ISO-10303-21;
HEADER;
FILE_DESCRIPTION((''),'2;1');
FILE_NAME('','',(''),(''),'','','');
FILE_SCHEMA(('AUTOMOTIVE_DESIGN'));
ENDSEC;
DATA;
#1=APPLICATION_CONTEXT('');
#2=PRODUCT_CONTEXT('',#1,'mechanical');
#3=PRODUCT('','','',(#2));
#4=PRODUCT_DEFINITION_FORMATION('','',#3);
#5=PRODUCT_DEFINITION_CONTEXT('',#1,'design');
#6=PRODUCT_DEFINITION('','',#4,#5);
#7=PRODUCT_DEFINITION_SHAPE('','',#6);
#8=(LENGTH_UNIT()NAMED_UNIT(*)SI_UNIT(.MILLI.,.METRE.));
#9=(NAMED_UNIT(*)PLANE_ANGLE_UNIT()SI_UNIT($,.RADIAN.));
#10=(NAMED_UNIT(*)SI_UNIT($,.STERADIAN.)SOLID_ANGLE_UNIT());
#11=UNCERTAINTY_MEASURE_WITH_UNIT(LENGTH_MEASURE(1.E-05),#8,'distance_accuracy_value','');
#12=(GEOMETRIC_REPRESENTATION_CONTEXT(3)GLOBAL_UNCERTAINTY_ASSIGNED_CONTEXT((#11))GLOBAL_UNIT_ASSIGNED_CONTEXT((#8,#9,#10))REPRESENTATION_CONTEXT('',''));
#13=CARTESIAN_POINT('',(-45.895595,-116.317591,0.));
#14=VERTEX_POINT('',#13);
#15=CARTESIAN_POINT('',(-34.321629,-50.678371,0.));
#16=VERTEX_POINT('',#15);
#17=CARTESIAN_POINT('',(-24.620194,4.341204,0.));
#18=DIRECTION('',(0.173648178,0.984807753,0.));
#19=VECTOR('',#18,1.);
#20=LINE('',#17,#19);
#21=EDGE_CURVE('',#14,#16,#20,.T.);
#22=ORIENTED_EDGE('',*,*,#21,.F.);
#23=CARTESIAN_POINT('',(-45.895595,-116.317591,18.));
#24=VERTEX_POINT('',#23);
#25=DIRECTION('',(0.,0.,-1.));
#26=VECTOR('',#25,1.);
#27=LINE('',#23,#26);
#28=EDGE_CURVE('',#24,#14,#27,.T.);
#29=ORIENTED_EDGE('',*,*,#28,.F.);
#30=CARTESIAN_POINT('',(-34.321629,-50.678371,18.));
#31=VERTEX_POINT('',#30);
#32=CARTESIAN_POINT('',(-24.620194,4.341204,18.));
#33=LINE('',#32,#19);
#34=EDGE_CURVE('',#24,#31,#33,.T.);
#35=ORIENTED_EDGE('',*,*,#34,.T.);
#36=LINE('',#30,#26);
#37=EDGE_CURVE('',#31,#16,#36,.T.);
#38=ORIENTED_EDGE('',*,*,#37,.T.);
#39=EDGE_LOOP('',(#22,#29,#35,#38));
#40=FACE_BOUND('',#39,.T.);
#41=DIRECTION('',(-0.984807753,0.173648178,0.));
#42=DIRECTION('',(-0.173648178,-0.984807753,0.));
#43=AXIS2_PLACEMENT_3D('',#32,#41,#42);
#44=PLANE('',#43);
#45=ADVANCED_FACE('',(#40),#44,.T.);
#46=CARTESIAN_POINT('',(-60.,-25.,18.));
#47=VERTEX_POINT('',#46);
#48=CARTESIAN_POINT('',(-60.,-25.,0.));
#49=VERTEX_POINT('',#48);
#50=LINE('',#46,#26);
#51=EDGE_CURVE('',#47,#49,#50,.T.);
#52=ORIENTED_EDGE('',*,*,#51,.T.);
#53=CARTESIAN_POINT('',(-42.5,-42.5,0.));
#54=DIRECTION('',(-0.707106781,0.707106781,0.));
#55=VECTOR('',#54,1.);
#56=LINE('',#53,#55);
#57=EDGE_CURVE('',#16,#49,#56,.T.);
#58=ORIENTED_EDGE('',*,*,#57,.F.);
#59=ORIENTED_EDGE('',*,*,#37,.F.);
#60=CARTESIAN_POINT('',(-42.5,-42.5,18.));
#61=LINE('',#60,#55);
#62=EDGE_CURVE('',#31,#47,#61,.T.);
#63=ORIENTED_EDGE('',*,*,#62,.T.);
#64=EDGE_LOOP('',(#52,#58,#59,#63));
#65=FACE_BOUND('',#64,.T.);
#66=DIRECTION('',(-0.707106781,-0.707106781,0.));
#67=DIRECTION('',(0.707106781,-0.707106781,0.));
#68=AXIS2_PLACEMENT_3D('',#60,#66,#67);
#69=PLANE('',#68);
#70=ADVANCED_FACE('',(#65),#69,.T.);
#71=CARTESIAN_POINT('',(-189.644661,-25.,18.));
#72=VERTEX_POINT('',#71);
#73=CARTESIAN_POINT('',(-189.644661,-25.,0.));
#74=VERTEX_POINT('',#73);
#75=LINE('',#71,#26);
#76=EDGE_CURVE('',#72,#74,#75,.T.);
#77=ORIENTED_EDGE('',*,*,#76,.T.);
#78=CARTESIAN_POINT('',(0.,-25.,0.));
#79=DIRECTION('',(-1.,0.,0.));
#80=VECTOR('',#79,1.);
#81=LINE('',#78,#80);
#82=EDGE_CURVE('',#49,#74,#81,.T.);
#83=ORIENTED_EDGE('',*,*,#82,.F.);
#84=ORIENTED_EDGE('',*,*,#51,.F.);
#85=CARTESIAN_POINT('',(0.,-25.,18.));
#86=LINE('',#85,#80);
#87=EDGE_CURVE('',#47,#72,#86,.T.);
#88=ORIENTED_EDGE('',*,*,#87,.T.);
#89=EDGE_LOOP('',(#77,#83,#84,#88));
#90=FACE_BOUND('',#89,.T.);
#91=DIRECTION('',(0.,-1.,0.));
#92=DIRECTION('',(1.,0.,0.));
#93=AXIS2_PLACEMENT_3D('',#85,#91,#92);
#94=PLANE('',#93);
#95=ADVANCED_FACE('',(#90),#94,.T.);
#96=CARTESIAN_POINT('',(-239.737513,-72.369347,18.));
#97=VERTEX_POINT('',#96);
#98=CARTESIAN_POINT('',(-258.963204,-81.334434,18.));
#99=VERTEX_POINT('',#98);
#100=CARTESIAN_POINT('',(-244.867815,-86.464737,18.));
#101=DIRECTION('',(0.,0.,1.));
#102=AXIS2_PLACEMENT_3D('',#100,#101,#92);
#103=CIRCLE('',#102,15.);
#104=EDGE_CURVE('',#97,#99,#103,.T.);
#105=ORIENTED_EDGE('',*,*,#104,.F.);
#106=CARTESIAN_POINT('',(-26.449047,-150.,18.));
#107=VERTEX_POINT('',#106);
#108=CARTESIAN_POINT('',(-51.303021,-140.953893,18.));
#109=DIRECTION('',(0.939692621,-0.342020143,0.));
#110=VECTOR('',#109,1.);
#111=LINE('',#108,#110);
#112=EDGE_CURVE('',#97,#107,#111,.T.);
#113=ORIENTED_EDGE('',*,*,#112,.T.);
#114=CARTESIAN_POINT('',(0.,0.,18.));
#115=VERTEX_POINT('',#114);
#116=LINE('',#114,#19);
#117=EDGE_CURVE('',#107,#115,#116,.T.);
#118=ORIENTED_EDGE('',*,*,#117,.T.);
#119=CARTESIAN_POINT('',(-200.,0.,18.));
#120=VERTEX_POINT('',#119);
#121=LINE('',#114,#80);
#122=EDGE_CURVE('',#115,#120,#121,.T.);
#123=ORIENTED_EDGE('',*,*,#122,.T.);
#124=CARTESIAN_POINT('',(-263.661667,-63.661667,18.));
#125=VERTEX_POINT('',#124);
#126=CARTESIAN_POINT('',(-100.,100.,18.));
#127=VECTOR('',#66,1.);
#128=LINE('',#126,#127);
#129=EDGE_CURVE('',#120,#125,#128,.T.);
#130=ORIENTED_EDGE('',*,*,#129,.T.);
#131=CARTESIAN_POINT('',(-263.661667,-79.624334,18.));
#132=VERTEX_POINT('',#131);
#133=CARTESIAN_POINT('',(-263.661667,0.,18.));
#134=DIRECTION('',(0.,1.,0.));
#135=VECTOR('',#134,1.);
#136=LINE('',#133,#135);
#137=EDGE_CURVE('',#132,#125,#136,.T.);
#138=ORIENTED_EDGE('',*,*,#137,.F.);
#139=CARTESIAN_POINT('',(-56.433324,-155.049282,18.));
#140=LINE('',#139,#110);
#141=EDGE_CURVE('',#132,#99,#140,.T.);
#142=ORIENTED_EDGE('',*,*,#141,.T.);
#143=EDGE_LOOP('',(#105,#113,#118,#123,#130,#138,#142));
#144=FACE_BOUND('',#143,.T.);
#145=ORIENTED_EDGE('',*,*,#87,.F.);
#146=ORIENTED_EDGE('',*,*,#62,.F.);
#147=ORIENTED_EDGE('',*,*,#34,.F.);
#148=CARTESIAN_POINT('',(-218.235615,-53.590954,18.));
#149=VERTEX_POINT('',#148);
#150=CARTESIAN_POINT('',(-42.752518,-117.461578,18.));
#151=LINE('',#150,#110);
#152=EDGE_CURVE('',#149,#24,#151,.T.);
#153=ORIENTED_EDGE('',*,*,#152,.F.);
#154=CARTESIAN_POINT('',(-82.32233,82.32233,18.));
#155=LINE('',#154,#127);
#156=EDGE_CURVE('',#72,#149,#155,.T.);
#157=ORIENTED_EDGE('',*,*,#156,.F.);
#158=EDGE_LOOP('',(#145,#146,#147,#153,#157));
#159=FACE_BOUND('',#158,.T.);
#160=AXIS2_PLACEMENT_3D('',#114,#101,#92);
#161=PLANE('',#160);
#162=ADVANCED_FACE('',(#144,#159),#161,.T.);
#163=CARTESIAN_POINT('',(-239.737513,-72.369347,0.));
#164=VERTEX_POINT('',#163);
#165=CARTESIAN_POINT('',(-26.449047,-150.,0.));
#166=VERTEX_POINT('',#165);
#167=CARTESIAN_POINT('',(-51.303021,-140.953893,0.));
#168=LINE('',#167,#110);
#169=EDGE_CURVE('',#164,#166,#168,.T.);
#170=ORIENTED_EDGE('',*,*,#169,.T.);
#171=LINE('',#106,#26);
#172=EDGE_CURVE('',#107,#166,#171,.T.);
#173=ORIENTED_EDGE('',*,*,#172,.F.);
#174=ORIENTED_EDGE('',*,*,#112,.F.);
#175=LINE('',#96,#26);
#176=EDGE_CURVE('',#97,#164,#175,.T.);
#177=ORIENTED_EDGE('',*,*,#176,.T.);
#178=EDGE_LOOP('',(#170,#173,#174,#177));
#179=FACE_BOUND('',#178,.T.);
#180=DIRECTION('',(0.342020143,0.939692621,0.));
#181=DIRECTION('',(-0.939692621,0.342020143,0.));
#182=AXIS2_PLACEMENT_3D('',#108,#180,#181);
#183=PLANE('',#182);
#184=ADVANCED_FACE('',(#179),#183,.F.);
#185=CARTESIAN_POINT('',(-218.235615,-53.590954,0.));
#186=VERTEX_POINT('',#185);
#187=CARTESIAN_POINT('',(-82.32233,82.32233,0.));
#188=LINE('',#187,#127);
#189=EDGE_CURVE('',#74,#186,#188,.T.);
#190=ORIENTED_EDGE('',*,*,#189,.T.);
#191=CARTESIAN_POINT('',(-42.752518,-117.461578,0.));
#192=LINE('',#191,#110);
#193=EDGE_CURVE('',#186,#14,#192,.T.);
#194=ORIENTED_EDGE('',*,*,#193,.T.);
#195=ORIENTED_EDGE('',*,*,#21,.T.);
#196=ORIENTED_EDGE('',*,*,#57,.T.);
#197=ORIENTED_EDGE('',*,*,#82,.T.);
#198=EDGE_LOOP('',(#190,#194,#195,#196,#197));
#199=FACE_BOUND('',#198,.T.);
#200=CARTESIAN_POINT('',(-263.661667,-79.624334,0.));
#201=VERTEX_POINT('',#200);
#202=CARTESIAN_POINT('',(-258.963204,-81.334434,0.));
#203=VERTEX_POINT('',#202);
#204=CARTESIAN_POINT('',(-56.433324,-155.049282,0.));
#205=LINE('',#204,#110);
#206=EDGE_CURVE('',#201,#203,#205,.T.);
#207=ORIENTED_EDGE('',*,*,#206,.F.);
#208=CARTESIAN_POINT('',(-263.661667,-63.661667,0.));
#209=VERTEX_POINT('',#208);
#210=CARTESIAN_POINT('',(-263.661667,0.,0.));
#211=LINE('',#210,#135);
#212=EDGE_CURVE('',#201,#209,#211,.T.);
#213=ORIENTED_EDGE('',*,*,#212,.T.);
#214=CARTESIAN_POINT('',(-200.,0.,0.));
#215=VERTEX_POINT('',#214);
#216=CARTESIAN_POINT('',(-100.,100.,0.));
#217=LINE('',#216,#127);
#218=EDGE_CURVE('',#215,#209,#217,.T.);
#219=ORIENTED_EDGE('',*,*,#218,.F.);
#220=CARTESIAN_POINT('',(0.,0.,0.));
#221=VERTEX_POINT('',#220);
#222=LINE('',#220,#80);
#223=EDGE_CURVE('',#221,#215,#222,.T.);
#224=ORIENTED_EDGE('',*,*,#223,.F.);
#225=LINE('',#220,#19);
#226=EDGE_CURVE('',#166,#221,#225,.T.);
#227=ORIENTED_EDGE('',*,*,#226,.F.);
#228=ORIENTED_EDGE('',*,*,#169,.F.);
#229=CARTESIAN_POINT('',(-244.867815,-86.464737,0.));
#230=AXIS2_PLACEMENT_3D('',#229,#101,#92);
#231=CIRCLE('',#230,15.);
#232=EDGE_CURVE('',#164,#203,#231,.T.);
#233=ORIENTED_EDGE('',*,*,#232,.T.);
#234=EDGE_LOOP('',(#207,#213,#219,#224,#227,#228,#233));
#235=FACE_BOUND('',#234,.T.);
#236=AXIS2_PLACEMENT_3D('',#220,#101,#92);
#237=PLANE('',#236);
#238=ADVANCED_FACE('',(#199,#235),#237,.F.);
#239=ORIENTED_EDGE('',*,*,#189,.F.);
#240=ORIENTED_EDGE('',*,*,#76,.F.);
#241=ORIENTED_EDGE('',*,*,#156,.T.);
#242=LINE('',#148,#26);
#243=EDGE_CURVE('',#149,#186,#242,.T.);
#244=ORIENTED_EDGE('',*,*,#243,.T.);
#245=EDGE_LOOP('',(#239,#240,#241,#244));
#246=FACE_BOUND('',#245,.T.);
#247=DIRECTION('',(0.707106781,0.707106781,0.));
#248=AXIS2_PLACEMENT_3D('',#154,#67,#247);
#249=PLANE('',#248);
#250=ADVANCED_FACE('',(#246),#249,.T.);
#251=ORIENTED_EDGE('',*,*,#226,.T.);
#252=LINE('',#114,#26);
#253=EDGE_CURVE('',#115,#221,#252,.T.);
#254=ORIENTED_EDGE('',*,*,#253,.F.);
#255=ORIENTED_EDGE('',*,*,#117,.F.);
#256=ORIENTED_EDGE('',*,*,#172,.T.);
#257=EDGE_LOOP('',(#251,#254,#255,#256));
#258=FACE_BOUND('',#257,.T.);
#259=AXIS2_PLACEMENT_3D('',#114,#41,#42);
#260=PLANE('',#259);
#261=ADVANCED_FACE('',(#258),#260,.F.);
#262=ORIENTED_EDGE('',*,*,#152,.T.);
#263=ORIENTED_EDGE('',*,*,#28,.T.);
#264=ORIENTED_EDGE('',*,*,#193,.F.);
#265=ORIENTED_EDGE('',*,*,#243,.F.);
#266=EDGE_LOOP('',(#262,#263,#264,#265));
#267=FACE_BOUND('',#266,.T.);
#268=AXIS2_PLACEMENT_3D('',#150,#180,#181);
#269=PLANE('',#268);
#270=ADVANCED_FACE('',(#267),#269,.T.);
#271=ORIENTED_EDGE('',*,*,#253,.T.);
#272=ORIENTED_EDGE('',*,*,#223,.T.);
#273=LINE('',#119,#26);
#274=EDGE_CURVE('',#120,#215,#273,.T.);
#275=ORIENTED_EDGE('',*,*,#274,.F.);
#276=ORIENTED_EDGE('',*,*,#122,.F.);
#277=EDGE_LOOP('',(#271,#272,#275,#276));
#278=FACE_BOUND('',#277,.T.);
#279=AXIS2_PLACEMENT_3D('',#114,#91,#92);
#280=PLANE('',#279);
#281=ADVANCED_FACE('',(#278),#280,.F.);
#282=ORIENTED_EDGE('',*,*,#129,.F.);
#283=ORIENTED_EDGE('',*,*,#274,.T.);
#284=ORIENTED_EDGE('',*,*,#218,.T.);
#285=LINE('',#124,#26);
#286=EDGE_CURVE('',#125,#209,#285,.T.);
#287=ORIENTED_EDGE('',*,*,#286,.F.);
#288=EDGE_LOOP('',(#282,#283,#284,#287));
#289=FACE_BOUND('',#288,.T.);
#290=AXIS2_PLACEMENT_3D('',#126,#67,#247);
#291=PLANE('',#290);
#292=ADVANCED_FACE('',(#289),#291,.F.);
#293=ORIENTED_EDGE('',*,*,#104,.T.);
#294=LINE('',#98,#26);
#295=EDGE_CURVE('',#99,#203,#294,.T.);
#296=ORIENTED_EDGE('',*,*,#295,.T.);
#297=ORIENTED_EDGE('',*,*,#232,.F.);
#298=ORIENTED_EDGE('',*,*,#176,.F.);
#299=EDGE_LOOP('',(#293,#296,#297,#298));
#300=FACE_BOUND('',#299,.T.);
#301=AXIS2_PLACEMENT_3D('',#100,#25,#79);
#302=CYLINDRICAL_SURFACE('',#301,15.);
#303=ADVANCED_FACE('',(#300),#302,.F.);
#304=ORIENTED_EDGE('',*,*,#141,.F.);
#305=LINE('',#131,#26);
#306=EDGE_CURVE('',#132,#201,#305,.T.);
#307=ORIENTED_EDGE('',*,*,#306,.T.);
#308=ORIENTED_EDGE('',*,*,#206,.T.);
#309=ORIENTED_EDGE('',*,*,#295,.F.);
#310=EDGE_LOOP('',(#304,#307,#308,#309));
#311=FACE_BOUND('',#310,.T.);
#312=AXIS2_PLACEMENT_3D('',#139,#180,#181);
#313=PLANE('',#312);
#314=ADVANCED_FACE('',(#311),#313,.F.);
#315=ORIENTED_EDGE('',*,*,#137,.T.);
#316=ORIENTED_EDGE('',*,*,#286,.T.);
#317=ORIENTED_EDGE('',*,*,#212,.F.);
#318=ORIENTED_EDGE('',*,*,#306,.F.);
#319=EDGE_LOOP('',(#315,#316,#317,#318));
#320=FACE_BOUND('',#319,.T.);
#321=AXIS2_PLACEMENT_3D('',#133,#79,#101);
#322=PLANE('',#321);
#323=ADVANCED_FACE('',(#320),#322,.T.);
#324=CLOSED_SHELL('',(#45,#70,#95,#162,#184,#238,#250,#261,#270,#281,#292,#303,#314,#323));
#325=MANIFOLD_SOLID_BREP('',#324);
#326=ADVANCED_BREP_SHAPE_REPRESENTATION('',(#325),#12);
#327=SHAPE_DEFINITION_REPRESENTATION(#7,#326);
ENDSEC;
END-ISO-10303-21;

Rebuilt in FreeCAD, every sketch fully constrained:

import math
import FreeCAD as App
import Part
import Sketcher
Q = App.Units.Quantity


def add_polygon(sketch, points):
    """Adds a closed chain of lines whose ends are joined by coincident constraints."""
    first, n = sketch.GeometryCount, len(points)
    for a, b in zip(points, points[1:] + points[:1]):
        sketch.addGeometry(Part.LineSegment(App.Vector(*a, 0), App.Vector(*b, 0)), False)
    for i in range(n):
        sketch.addConstraint(Sketcher.Constraint("Coincident", first + i, 2, first + (i + 1) % n, 1))

doc = App.newDocument("Part")
params = doc.addObject("Spreadsheet::Sheet", "Params")
for row, (alias, value) in enumerate([
    ("sketch1_radius", "15 mm"),
    ("sketch1_width", "200 mm"),
    ("sketch1_length", "5 mm"),
    ("pad1_length", "18 mm"),
], start=1):
    params.set(f"A{row}", alias)
    params.set(f"B{row}", "=" + value)
    params.setAlias(f"B{row}", alias)

body = doc.addObject("PartDesign::Body", "Body")

# Sketch on XY plane
sketch1 = body.newObject("Sketcher::SketchObject", "Sketch")
sketch1.AttachmentSupport = (doc.getObject("XY_Plane"), [""])
sketch1.MapMode = "FlatFace"
sketch1.addGeometry(Part.ArcOfCircle(Part.Circle(App.Vector(-245, -86, 0), App.Vector(0, 0, 1), 15), math.radians(70), math.radians(160)), False)  # 0
sketch1.addGeometry(Part.LineSegment(App.Vector(-240, -72, 0), App.Vector(-32, -148, 0)), False)  # 1
sketch1.addGeometry(Part.LineSegment(App.Vector(-32, -148, 0), App.Vector(-26, -150, 0)), False)  # 2
sketch1.addGeometry(Part.LineSegment(App.Vector(-26, -150, 0), App.Vector(-25, -144, 0)), False)  # 3
sketch1.addGeometry(Part.LineSegment(App.Vector(-25, -144, 0), App.Vector(-1, -6, 0)), False)  # 4
sketch1.addGeometry(Part.LineSegment(App.Vector(-1, -6, 0), App.Vector(0, 0, 0)), False)  # 5
sketch1.addGeometry(Part.LineSegment(App.Vector(0, 0, 0), App.Vector(-200, 0, 0)), False)  # 6
sketch1.addGeometry(Part.LineSegment(App.Vector(-200, 0, 0), App.Vector(-264, -64, 0)), False)  # 7
sketch1.addGeometry(Part.LineSegment(App.Vector(-264, -64, 0), App.Vector(-264, -80, 0)), False)  # 8
sketch1.addGeometry(Part.LineSegment(App.Vector(-264, -80, 0), App.Vector(-259, -81, 0)), False)  # 9
add_polygon(sketch1, [(-218, -54), (-190, -25), (-60, -25), (-34, -51), (-46, -116)])  # lines 10-14
sketch1.addConstraint(Sketcher.Constraint("Tangent", 0, 1, 1, 1))
sketch1.addConstraint(Sketcher.Constraint("Coincident", 1, 2, 2, 1))
sketch1.addConstraint(Sketcher.Constraint("Coincident", 2, 2, 3, 1))
sketch1.addConstraint(Sketcher.Constraint("Coincident", 3, 2, 4, 1))
sketch1.addConstraint(Sketcher.Constraint("Coincident", 4, 2, 5, 1))
sketch1.addConstraint(Sketcher.Constraint("Coincident", 5, 2, 6, 1))
sketch1.addConstraint(Sketcher.Constraint("Coincident", 6, 2, 7, 1))
sketch1.addConstraint(Sketcher.Constraint("Coincident", 7, 2, 8, 1))
sketch1.addConstraint(Sketcher.Constraint("Coincident", 8, 2, 9, 1))
sketch1.addConstraint(Sketcher.Constraint("Coincident", 9, 2, 0, 2))
sketch1.addConstraint(Sketcher.Constraint("Horizontal", 6))
sketch1.addConstraint(Sketcher.Constraint("Vertical", 8))
sketch1.addConstraint(Sketcher.Constraint("Horizontal", 11))
sketch1.addConstraint(Sketcher.Constraint("Coincident", 5, 2, -1, 1))
sketch1.addConstraint(Sketcher.Constraint("Parallel", 1, 2))
sketch1.addConstraint(Sketcher.Constraint("Parallel", 3, 4))
sketch1.addConstraint(Sketcher.Constraint("Parallel", 4, 5))
sketch1.addConstraint(Sketcher.Constraint("Parallel", 2, 9))
sketch1.addConstraint(Sketcher.Constraint("Parallel", 7, 10))
sketch1.addConstraint(Sketcher.Constraint("Perpendicular", 10, 12))
sketch1.addConstraint(Sketcher.Constraint("Parallel", 5, 13))
sketch1.addConstraint(Sketcher.Constraint("Parallel", 9, 14))
sketch1.addConstraint(Sketcher.Constraint("Equal", 2, 3))
sketch1.addConstraint(Sketcher.Constraint("Equal", 3, 5))
sketch1.addConstraint(Sketcher.Constraint("Radius", 0, 15.0))
sketch1.addConstraint(Sketcher.Constraint("DistanceX", 6, 2, 6, 1, 200.0))
sketch1.addConstraint(Sketcher.Constraint("Angle", 1, Q("-20 deg")))
sketch1.addConstraint(Sketcher.Constraint("Angle", 3, Q("80 deg")))
sketch1.addConstraint(Sketcher.Constraint("Angle", 7, Q("-135 deg")))
sketch1.addConstraint(Sketcher.Constraint("Distance", 9, 5.0))
sketch1.addConstraint(Sketcher.Constraint("DistanceY", 2, 2, -1, 1, 150.0))
sketch1.addConstraint(Sketcher.Constraint("DistanceY", 10, 2, -1, 1, 25.0))
sketch1.addConstraint(Sketcher.Constraint("DistanceX", 11, 2, -1, 1, 60.0))
sketch1.addConstraint(Sketcher.Constraint("Distance", 12, 36.3147))
sketch1.addConstraint(Sketcher.Constraint("DistanceX", 11, 1, 11, 2, 129.644661))
sketch1.addConstraint(Sketcher.Constraint("DistanceX", 12, 2, 4, 2, 33.2869))
sketch1.addConstraint(Sketcher.Constraint("DistanceX", 0, 3, 14, 2, 26.6322))
sketch1.addConstraint(Sketcher.Constraint("Distance", 13, 66.651811))
sketch1.addConstraint(Sketcher.Constraint("DistanceY", 8, 2, 8, 1, 15.962667))
sketch1.setExpression("Constraints[29]", "Params.sketch1_radius")
sketch1.setExpression("Constraints[30]", "Params.sketch1_width")
sketch1.setExpression("Constraints[34]", "Params.sketch1_length")
pad1 = body.newObject("PartDesign::Pad", "Pad")
pad1.Profile = sketch1
pad1.setExpression("Length", "Params.pad1_length")

doc.recompute()
